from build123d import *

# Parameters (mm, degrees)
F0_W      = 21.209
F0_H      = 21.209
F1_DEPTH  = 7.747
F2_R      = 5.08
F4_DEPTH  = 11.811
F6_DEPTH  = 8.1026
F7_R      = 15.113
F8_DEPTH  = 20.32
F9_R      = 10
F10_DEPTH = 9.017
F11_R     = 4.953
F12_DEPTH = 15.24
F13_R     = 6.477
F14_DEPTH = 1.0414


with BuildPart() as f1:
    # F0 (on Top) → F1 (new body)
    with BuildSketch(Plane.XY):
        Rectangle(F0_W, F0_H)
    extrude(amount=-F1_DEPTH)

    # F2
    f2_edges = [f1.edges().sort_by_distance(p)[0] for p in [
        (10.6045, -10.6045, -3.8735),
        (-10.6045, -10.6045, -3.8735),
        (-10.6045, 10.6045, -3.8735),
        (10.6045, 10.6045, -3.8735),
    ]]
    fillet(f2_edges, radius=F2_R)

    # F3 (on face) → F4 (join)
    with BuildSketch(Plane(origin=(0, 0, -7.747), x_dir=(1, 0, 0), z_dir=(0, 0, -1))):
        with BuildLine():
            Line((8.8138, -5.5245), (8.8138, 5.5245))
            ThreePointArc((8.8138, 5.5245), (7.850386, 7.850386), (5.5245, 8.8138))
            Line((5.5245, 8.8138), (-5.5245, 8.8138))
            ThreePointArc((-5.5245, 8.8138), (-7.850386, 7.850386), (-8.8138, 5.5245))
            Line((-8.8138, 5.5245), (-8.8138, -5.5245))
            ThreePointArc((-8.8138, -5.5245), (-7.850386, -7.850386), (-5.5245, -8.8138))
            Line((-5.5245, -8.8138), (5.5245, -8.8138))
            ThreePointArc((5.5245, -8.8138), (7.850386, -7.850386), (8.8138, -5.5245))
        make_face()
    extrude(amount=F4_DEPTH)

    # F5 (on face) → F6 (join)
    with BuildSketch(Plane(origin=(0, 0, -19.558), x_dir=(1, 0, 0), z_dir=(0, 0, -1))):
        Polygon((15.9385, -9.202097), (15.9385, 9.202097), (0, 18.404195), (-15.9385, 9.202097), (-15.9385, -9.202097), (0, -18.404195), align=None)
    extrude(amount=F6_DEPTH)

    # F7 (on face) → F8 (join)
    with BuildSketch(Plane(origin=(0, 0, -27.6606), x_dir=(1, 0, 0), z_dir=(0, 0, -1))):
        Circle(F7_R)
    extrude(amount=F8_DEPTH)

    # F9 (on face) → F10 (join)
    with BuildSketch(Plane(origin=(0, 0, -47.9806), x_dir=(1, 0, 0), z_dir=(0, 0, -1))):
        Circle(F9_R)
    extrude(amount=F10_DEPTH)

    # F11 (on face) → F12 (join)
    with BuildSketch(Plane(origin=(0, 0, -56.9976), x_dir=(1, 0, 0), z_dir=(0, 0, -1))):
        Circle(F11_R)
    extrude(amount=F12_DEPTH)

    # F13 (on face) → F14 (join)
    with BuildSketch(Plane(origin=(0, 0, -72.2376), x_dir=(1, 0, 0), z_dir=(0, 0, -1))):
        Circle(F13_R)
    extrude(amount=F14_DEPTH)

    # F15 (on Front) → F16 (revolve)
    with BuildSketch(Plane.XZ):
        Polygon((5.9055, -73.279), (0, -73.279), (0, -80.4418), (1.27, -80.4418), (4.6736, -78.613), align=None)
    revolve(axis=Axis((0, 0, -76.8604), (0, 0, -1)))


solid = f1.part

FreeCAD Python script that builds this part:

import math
import FreeCAD as App
import Part
import Sketcher

V = App.Vector
Q = App.Units.Quantity


def edges_at(feature, points):
    """Names of the edges that pass closest to the given points."""
    edges = feature.Shape.Edges
    near = lambda p: min(range(len(edges)), key=lambda i: edges[i].distToShape(Part.Vertex(*p))[0])
    return sorted({f"Edge{near(p) + 1}" for p in points})


def add_polygon(sketch, points):
    """Adds a closed chain of lines whose ends are joined by coincident constraints."""
    first, n = sketch.GeometryCount, len(points)
    for a, b in zip(points, points[1:] + points[:1]):
        sketch.addGeometry(Part.LineSegment(App.Vector(*a, 0), App.Vector(*b, 0)), False)
    for i in range(n):
        sketch.addConstraint(Sketcher.Constraint("Coincident", first + i, 2, first + (i + 1) % n, 1))

doc = App.newDocument("Part")
params = doc.addObject("Spreadsheet::Sheet", "Params")
for row, (alias, value) in enumerate([
    ("sketch1_width", "0.835 in"),
    ("pad1_length", "0.305 in"),
    ("fillet_radius", "0.2 in"),
    ("sketch2_width", "0.435 in"),
    ("pad2_length", "0.465 in"),
    ("pad3_length", "0.319 in"),
    ("sketch4_diameter", "1.19 in"),
    ("pad4_length", "0.8 in"),
    ("pad5_length", "0.355 in"),
    ("sketch6_diameter", "0.39 in"),
    ("pad6_length", "0.6 in"),
    ("sketch7_diameter", "0.51 in"),
    ("pad7_length", "0.041 in"),
    ("sketch8_width", "0.05 in"),
    ("sketch8_height", "0.282 in"),
    ("revolution_angle", "360 deg"),
], start=1):
    params.set(f"A{row}", alias)
    params.set(f"B{row}", "=" + value)
    params.setAlias(f"B{row}", alias)

body = doc.addObject("PartDesign::Body", "Body")

sketch1 = body.newObject("Sketcher::SketchObject", "Sketch")
sketch1.AttachmentSupport = (doc.getObject("XY_Plane"), [""])
sketch1.MapMode = "FlatFace"
add_polygon(sketch1, [(-11, 11), (-11, -11), (11, -11), (11, 11)])
sketch1.addConstraint([
    Sketcher.Constraint("Vertical", 0),
    Sketcher.Constraint("Horizontal", 1),
    Sketcher.Constraint("Vertical", 2),
    Sketcher.Constraint("Horizontal", 3),
    Sketcher.Constraint("Symmetric", 0, 2, 2, 2, -1, 1),
    Sketcher.Constraint("Equal", 3, 0),
    Sketcher.Constraint("DistanceX", 1, 1, 1, 2, Q("0.835 in")),
])
sketch1.setExpression("Constraints[10]", "Params.sketch1_width")
pad1 = body.newObject("PartDesign::Pad", "Pad")
pad1.Profile = sketch1
pad1.setExpression("Length", "Params.pad1_length")
pad1.Reversed = True
doc.recompute()

fillet = body.newObject("PartDesign::Fillet", "Fillet")
fillet.Base = (pad1, edges_at(pad1, [
    (10.604, -10.604, -3.873),
    (-10.604, -10.604, -3.873),
    (-10.604, 10.604, -3.873),
    (10.604, 10.604, -3.873),
]))
fillet.setExpression("Radius", "Params.fillet_radius")

sketch2 = body.newObject("Sketcher::SketchObject", "Sketch001")
sketch2.AttachmentSupport = (doc.getObject("XY_Plane"), [""])
sketch2.MapMode = "FlatFace"
sketch2.AttachmentOffset = App.Placement(V(0, 0, -0.305 * 25.4), App.Rotation())
sketch2.addGeometry([
    Part.LineSegment(V(8.8, 5.5, 0), V(8.8, -5.5, 0)),
    Part.ArcOfCircle(Part.Circle(V(5.5, -5.5, 0), V(0, 0, 1), 3.3), math.radians(-90), math.radians(0)),
    Part.LineSegment(V(5.5, -8.8, 0), V(-5.5, -8.8, 0)),
    Part.ArcOfCircle(Part.Circle(V(-5.5, -5.5, 0), V(0, 0, 1), 3.3), math.radians(-180), math.radians(-90)),
    Part.LineSegment(V(-8.8, -5.5, 0), V(-8.8, 5.5, 0)),
    Part.ArcOfCircle(Part.Circle(V(-5.5, 5.5, 0), V(0, 0, 1), 3.3), math.radians(90), math.radians(180)),
    Part.LineSegment(V(-5.5, 8.8, 0), V(5.5, 8.8, 0)),
    Part.ArcOfCircle(Part.Circle(V(5.5, 5.5, 0), V(0, 0, 1), 3.3), math.radians(0), math.radians(90)),
], False)
sketch2.addConstraint([
    Sketcher.Constraint("Tangent", 0, 2, 1, 2),
    Sketcher.Constraint("Tangent", 1, 1, 2, 1),
    Sketcher.Constraint("Tangent", 2, 2, 3, 2),
    Sketcher.Constraint("Tangent", 3, 1, 4, 1),
    Sketcher.Constraint("Tangent", 4, 2, 5, 2),
    Sketcher.Constraint("Tangent", 5, 1, 6, 1),
    Sketcher.Constraint("Tangent", 6, 2, 7, 2),
    Sketcher.Constraint("Tangent", 7, 1, 0, 1),
    Sketcher.Constraint("Vertical", 0),
    Sketcher.Constraint("Horizontal", 2),
    Sketcher.Constraint("Vertical", 4),
    Sketcher.Constraint("Horizontal", 6),
    Sketcher.Constraint("Equal", 1, 3),
    Sketcher.Constraint("Equal", 3, 5),
    Sketcher.Constraint("Equal", 5, 7),
    Sketcher.Constraint("Symmetric", 1, 3, 5, 3, -1, 1),
    Sketcher.Constraint("Equal", 6, 0),
    Sketcher.Constraint("Radius", 1, Q("0.1295 in")),
    Sketcher.Constraint("DistanceX", 2, 2, 2, 1, Q("0.435 in")),
])
sketch2.setExpression("Constraints[18]", "Params.sketch2_width")
pad2 = body.newObject("PartDesign::Pad", "Pad001")
pad2.Profile = sketch2
pad2.setExpression("Length", "Params.pad2_length")
pad2.Reversed = True

sketch3 = body.newObject("Sketcher::SketchObject", "Sketch002")
sketch3.AttachmentSupport = (doc.getObject("XY_Plane"), [""])
sketch3.MapMode = "FlatFace"
sketch3.AttachmentOffset = App.Placement(V(0, 0, -0.77 * 25.4), App.Rotation())
add_polygon(sketch3, [(16, 9), (16, -9), (0, -18), (-16, -9), (-16, 9), (0, 18)])
sketch3.addConstraint([
    Sketcher.Constraint("Vertical", 0),
    Sketcher.Constraint("Vertical", 3),
    Sketcher.Constraint("Symmetric", 0, 2, 3, 2, -1, 1),
    Sketcher.Constraint("Symmetric", 1, 2, 4, 2, -1, 1),
    Sketcher.Constraint("PointOnObject", 1, 2, -2),
    Sketcher.Constraint("Parallel", 2, 5),
    Sketcher.Constraint("Horizontal", 0, 2, 2, 2),
    Sketcher.Constraint("Angle", 1, Q("-149.999998 deg")),
    Sketcher.Constraint("DistanceX", 2, 2, 0, 2, Q("1.255 in")),
    Sketcher.Constraint("DistanceY", 0, 2, 0, 1, Q("18.404194 mm")),
])
pad3 = body.newObject("PartDesign::Pad", "Pad002")
pad3.Profile = sketch3
pad3.setExpression("Length", "Params.pad3_length")
pad3.Reversed = True

sketch4 = body.newObject("Sketcher::SketchObject", "Sketch003")
sketch4.AttachmentSupport = (doc.getObject("XY_Plane"), [""])
sketch4.MapMode = "FlatFace"
sketch4.AttachmentOffset = App.Placement(V(0, 0, -1.089 * 25.4), App.Rotation())
sketch4.addGeometry(Part.Circle(V(0, 0, 0), V(0, 0, 1), 15), False)
sketch4.addConstraint([
    Sketcher.Constraint("Coincident", 0, 3, -1, 1),
    Sketcher.Constraint("Diameter", 0, Q("1.19 in")),
])
sketch4.setExpression("Constraints[1]", "Params.sketch4_diameter")
pad4 = body.newObject("PartDesign::Pad", "Pad003")
pad4.Profile = sketch4
pad4.setExpression("Length", "Params.pad4_length")
pad4.Reversed = True

sketch5 = body.newObject("Sketcher::SketchObject", "Sketch004")
sketch5.AttachmentSupport = (doc.getObject("XY_Plane"), [""])
sketch5.MapMode = "FlatFace"
sketch5.AttachmentOffset = App.Placement(V(0, 0, -1.889 * 25.4), App.Rotation())
sketch5.addGeometry(Part.Circle(V(0, 0, 0), V(0, 0, 1), 10), False)
sketch5.addConstraint([
    Sketcher.Constraint("Coincident", 0, 3, -1, 1),
    Sketcher.Constraint("Diameter", 0, Q("20 mm")),
])
pad5 = body.newObject("PartDesign::Pad", "Pad004")
pad5.Profile = sketch5
pad5.setExpression("Length", "Params.pad5_length")
pad5.Reversed = True

sketch6 = body.newObject("Sketcher::SketchObject", "Sketch005")
sketch6.AttachmentSupport = (doc.getObject("XY_Plane"), [""])
sketch6.MapMode = "FlatFace"
sketch6.AttachmentOffset = App.Placement(V(0, 0, -2.244 * 25.4), App.Rotation())
sketch6.addGeometry(Part.Circle(V(0, 0, 0), V(0, 0, 1), 5), False)
sketch6.addConstraint([
    Sketcher.Constraint("Coincident", 0, 3, -1, 1),
    Sketcher.Constraint("Diameter", 0, Q("0.39 in")),
])
sketch6.setExpression("Constraints[1]", "Params.sketch6_diameter")
pad6 = body.newObject("PartDesign::Pad", "Pad005")
pad6.Profile = sketch6
pad6.setExpression("Length", "Params.pad6_length")
pad6.Reversed = True

sketch7 = body.newObject("Sketcher::SketchObject", "Sketch006")
sketch7.AttachmentSupport = (doc.getObject("XY_Plane"), [""])
sketch7.MapMode = "FlatFace"
sketch7.AttachmentOffset = App.Placement(V(0, 0, -2.844 * 25.4), App.Rotation())
sketch7.addGeometry(Part.Circle(V(0, 0, 0), V(0, 0, 1), 6), False)
sketch7.addConstraint([
    Sketcher.Constraint("Coincident", 0, 3, -1, 1),
    Sketcher.Constraint("Diameter", 0, Q("0.51 in")),
])
sketch7.setExpression("Constraints[1]", "Params.sketch7_diameter")
pad7 = body.newObject("PartDesign::Pad", "Pad006")
pad7.Profile = sketch7
pad7.setExpression("Length", "Params.pad7_length")
pad7.Reversed = True

sketch8 = body.newObject("Sketcher::SketchObject", "Sketch007")
sketch8.AttachmentSupport = (doc.getObject("XZ_Plane"), [""])
sketch8.MapMode = "FlatFace"
add_polygon(sketch8, [(5.9, -73.3), (0, -73.3), (0, -80.4), (1.3, -80.4), (4.7, -78.6)])
sketch8.addConstraint([
    Sketcher.Constraint("Horizontal", 0),
    Sketcher.Constraint("Vertical", 1),
    Sketcher.Constraint("Horizontal", 2),
    Sketcher.Constraint("PointOnObject", 0, 2, -2),
    Sketcher.Constraint("DistanceX", 2, 1, 2, 2, Q("0.05 in")),
    Sketcher.Constraint("DistanceY", 1, 2, 1, 1, Q("0.282 in")),
    Sketcher.Constraint("DistanceY", 3, 2, 0, 2, Q("0.21 in")),
    Sketcher.Constraint("DistanceX", 0, 2, 0, 1, Q("0.2325 in")),
    Sketcher.Constraint("DistanceY", 0, 2, -1, 1, Q("2.885 in")),
    Sketcher.Constraint("DistanceX", -1, 1, 3, 2, Q("0.184 in")),
])
sketch8.setExpression("Constraints[9]", "Params.sketch8_width")
sketch8.setExpression("Constraints[10]", "Params.sketch8_height")
revolution = body.newObject("PartDesign::Revolution", "Revolution")
revolution.Profile = sketch8
revolution.ReferenceAxis = (sketch8, ["V_Axis"])
revolution.setExpression("Angle", "Params.revolution_angle")

doc.recompute()
